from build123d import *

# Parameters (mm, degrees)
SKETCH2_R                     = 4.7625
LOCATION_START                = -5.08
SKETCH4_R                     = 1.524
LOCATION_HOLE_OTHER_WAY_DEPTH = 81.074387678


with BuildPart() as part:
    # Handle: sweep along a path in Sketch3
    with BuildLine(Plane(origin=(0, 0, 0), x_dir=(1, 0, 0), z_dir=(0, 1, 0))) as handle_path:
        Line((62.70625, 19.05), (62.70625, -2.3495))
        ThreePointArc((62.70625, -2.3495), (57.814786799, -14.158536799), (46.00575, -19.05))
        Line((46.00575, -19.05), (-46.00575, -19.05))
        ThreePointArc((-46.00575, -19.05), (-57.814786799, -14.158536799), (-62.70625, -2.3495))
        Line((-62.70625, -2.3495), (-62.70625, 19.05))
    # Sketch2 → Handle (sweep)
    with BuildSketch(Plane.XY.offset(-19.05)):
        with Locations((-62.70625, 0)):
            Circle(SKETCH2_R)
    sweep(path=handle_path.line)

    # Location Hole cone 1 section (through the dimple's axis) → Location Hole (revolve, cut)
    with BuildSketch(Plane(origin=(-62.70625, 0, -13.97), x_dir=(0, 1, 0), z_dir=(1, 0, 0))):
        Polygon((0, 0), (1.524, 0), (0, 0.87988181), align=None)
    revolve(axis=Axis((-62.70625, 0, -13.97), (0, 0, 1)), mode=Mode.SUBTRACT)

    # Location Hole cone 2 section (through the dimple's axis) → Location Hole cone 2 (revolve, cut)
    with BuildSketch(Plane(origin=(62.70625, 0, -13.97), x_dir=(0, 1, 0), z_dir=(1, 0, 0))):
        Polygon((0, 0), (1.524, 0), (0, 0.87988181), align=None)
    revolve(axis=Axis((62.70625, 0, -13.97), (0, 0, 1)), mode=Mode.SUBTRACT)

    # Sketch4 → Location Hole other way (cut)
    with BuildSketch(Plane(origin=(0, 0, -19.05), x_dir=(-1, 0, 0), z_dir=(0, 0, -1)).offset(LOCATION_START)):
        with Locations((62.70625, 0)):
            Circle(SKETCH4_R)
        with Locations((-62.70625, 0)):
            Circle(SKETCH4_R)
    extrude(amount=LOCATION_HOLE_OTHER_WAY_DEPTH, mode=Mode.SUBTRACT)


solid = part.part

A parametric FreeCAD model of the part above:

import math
import FreeCAD as App
import Part
import Sketcher
Q = App.Units.Quantity


def add_polygon(sketch, points):
    """Adds a closed chain of lines whose ends are joined by coincident constraints."""
    first, n = sketch.GeometryCount, len(points)
    for a, b in zip(points, points[1:] + points[:1]):
        sketch.addGeometry(Part.LineSegment(App.Vector(*a, 0), App.Vector(*b, 0)), False)
    for i in range(n):
        sketch.addConstraint(Sketcher.Constraint("Coincident", first + i, 2, first + (i + 1) % n, 1))

doc = App.newDocument("Part")
body = doc.addObject("PartDesign::Body", "Body")

# Sketch on XY plane
sketch1 = doc.addObject("Sketcher::SketchObject", "Sketch")
body.addObject(sketch1)
sketch1.AttachmentSupport = (doc.XY_Plane, [""])
sketch1.MapMode = "FlatFace"
sketch1.AttachmentOffset = App.Placement(App.Vector(0, 0, -0.75 * 25.4), App.Rotation())
sketch1.addGeometry(Part.Circle(App.Vector(-62.7, 0, 0), App.Vector(0, 0, 1), 4.8), False)
sketch1.addConstraint([
    Sketcher.Constraint("PointOnObject", 0, 3, -1),
    Sketcher.Constraint("Diameter", 0, Q("0.375 in")),
    Sketcher.Constraint("DistanceX", 0, 3, -1, 1, Q("2.46875 in")),
])

# Sketch on XZ plane
sketch2 = doc.addObject("Sketcher::SketchObject", "Sketch001")
body.addObject(sketch2)
sketch2.AttachmentSupport = (doc.XZ_Plane, [""])
sketch2.MapMode = "FlatFace"
sketch2.addGeometry([
    Part.LineSegment(App.Vector(63, -19, 0), App.Vector(63, 2, 0)),  # 0
    Part.ArcOfCircle(Part.Circle(App.Vector(46, 2, 0), App.Vector(0, 0, 1), 17), math.radians(0), math.radians(90)),  # 1
    Part.LineSegment(App.Vector(46, 19, 0), App.Vector(-46, 19, 0)),  # 2
    Part.ArcOfCircle(Part.Circle(App.Vector(-46, 2, 0), App.Vector(0, 0, 1), 17), math.radians(90), math.radians(180)),  # 3
    Part.LineSegment(App.Vector(-63, 2, 0), App.Vector(-63, -19, 0)),  # 4
], False)
sketch2.addConstraint([
    Sketcher.Constraint("Tangent", 0, 2, 1, 1),
    Sketcher.Constraint("Tangent", 1, 2, 2, 1),
    Sketcher.Constraint("Tangent", 2, 2, 3, 1),
    Sketcher.Constraint("Tangent", 3, 2, 4, 1),
    Sketcher.Constraint("Vertical", 0),
    Sketcher.Constraint("Horizontal", 2),
    Sketcher.Constraint("Vertical", 4),
    Sketcher.Constraint("Equal", 1, 3),
    Sketcher.Constraint("Symmetric", 0, 1, 4, 2, -2),
    Sketcher.Constraint("Radius", 1, Q("0.6575 in")),
    Sketcher.Constraint("DistanceY", 0, 1, 1, 2, Q("1.5 in")),
    Sketcher.Constraint("DistanceY", 0, 1, -1, 1, Q("0.75 in")),
    Sketcher.Constraint("DistanceX", 3, 3, 0, 1, Q("4.28 in")),
])
doc.recompute()

additivepipe = doc.addObject("PartDesign::AdditivePipe", "AdditivePipe")
body.addObject(additivepipe)
additivepipe.Profile = sketch1
additivepipe.Spine = (sketch2, ["Edge1", "Edge2", "Edge3", "Edge4", "Edge5"])

# Sketch on YZ plane
sketch3 = doc.addObject("Sketcher::SketchObject", "Sketch002")
body.addObject(sketch3)
sketch3.AttachmentSupport = (doc.YZ_Plane, [""])
sketch3.MapMode = "FlatFace"
sketch3.AttachmentOffset = App.Placement(App.Vector(0, 0, -2.46875 * 25.4), App.Rotation())
add_polygon(sketch3, [(0, -14), (1.5, -14), (0, -13.1)])  # lines 0-2
sketch3.addConstraint([
    Sketcher.Constraint("Horizontal", 0),
    Sketcher.Constraint("Vertical", 2),
    Sketcher.Constraint("PointOnObject", 1, 2, -2),
    Sketcher.Constraint("Angle", 1, Q("150 deg")),
    Sketcher.Constraint("DistanceX", 0, 1, 0, 2, Q("0.06 in")),
    Sketcher.Constraint("DistanceY", 0, 2, -1, 1, Q("0.55 in")),
])
groove = doc.addObject("PartDesign::Groove", "Groove")
body.addObject(groove)
groove.Profile = sketch3
groove.ReferenceAxis = (sketch3, ["V_Axis"])
groove.Angle = 360

# Sketch on YZ plane
sketch4 = doc.addObject("Sketcher::SketchObject", "Sketch003")
body.addObject(sketch4)
sketch4.AttachmentSupport = (doc.YZ_Plane, [""])
sketch4.MapMode = "FlatFace"
sketch4.AttachmentOffset = App.Placement(App.Vector(0, 0, 2.46875 * 25.4), App.Rotation())
add_polygon(sketch4, [(0, -14), (1.5, -14), (0, -13.1)])  # lines 0-2
sketch4.addConstraint([
    Sketcher.Constraint("Horizontal", 0),
    Sketcher.Constraint("Vertical", 2),
    Sketcher.Constraint("PointOnObject", 1, 2, -2),
    Sketcher.Constraint("Angle", 1, Q("150 deg")),
    Sketcher.Constraint("DistanceX", 0, 1, 0, 2, Q("0.06 in")),
    Sketcher.Constraint("DistanceY", 0, 2, -1, 1, Q("0.55 in")),
])
groove2 = doc.addObject("PartDesign::Groove", "Groove001")
body.addObject(groove2)
groove2.Profile = sketch4
groove2.ReferenceAxis = (sketch4, ["V_Axis"])
groove2.Angle = 360

# Sketch on XY plane
sketch5 = doc.addObject("Sketcher::SketchObject", "Sketch004")
body.addObject(sketch5)
sketch5.AttachmentSupport = (doc.XY_Plane, [""])
sketch5.MapMode = "FlatFace"
sketch5.AttachmentOffset = App.Placement(App.Vector(0, 0, -0.55 * 25.4), App.Rotation())
sketch5.addGeometry([
    Part.Circle(App.Vector(-62.7, 0, 0), App.Vector(0, 0, 1), 1.5),
    Part.Circle(App.Vector(62.7, 0, 0), App.Vector(0, 0, 1), 1.5),
], False)
sketch5.addConstraint([
    Sketcher.Constraint("Equal", 0, 1),
    Sketcher.Constraint("Symmetric", 0, 3, 1, 3, -1, 1),
    Sketcher.Constraint("PointOnObject", 0, 3, -1),
    Sketcher.Constraint("Diameter", 0, Q("0.12 in")),
    Sketcher.Constraint("DistanceX", 0, 3, -1, 1, Q("2.46875 in")),
])
pocket1 = doc.addObject("PartDesign::Pocket", "Pocket")
body.addObject(pocket1)
pocket1.Profile = sketch5
pocket1.Length = 81.074388

doc.recompute()
